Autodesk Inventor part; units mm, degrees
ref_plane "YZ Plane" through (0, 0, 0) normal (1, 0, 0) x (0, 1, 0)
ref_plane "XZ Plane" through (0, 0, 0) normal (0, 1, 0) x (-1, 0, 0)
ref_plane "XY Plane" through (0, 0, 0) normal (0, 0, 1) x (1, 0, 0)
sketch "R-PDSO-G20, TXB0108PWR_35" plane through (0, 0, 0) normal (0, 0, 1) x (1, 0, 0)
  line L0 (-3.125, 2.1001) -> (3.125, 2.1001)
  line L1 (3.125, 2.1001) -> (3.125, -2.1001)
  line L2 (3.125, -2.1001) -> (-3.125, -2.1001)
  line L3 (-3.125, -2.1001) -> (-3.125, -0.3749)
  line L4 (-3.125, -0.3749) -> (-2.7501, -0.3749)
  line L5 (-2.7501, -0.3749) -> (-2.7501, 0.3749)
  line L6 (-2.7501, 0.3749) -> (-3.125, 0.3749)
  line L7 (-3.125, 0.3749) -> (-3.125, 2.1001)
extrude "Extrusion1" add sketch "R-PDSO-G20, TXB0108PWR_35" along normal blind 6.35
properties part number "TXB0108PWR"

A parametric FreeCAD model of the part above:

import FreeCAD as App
import Part
import Sketcher

V = App.Vector
Q = App.Units.Quantity

doc = App.newDocument("Part")
body = doc.addObject("PartDesign::Body", "Body")

# Sketch on XY plane
sketch1 = doc.addObject("Sketcher::SketchObject", "Sketch")
body.addObject(sketch1)
sketch1.AttachmentSupport = (doc.XY_Plane, [""])
sketch1.MapMode = "FlatFace"
sketch1.addGeometry([
    Part.LineSegment(V(3.125, 2.1001, 0), V(-3.125, 2.1001, 0)),  # 0
    Part.LineSegment(V(-3.125, 2.1001, 0), V(-3.125, 0.3749, 0)),  # 1
    Part.LineSegment(V(-3.125, 0.3749, 0), V(-2.7501, 0.3749, 0)),  # 2
    Part.LineSegment(V(-2.7501, 0.3749, 0), V(-2.7501, -0.3749, 0)),  # 3
    Part.LineSegment(V(-2.7501, -0.3749, 0), V(-3.125, -0.3749, 0)),  # 4
    Part.LineSegment(V(-3.125, -0.3749, 0), V(-3.125, -2.1001, 0)),  # 5
    Part.LineSegment(V(-3.125, -2.1001, 0), V(3.125, -2.1001, 0)),  # 6
    Part.LineSegment(V(3.125, -2.1001, 0), V(3.125, 2.1001, 0)),  # 7
], False)
sketch1.addConstraint([
    Sketcher.Constraint("Coincident", 0, 2, 1, 1),
    Sketcher.Constraint("Coincident", 1, 2, 2, 1),
    Sketcher.Constraint("Coincident", 2, 2, 3, 1),
    Sketcher.Constraint("Coincident", 3, 2, 4, 1),
    Sketcher.Constraint("Coincident", 4, 2, 5, 1),
    Sketcher.Constraint("Coincident", 5, 2, 6, 1),
    Sketcher.Constraint("Coincident", 6, 2, 7, 1),
    Sketcher.Constraint("Coincident", 7, 2, 0, 1),
    Sketcher.Constraint("Horizontal", 0),
    Sketcher.Constraint("Vertical", 1),
    Sketcher.Constraint("Horizontal", 2),
    Sketcher.Constraint("Vertical", 3),
    Sketcher.Constraint("Horizontal", 4),
    Sketcher.Constraint("Vertical", 5),
    Sketcher.Constraint("Horizontal", 6),
    Sketcher.Constraint("Vertical", 7),
    Sketcher.Constraint("Symmetric", 0, 2, 6, 2, -1, 1),
    Sketcher.Constraint("Symmetric", 1, 2, 4, 2, -1),
    Sketcher.Constraint("DistanceX", 0, 2, 0, 1, 6.25),
    Sketcher.Constraint("DistanceX", 2, 1, 2, 2, 0.375),
    Sketcher.Constraint("DistanceY", 1, 2, 1, 1, 1.7252),
    Sketcher.Constraint("DistanceY", 3, 2, 3, 1, 0.7498),
])
pad1 = doc.addObject("PartDesign::Pad", "Pad")
body.addObject(pad1)
pad1.Profile = sketch1
pad1.Length = Q("0.25 in")

doc.recompute()
